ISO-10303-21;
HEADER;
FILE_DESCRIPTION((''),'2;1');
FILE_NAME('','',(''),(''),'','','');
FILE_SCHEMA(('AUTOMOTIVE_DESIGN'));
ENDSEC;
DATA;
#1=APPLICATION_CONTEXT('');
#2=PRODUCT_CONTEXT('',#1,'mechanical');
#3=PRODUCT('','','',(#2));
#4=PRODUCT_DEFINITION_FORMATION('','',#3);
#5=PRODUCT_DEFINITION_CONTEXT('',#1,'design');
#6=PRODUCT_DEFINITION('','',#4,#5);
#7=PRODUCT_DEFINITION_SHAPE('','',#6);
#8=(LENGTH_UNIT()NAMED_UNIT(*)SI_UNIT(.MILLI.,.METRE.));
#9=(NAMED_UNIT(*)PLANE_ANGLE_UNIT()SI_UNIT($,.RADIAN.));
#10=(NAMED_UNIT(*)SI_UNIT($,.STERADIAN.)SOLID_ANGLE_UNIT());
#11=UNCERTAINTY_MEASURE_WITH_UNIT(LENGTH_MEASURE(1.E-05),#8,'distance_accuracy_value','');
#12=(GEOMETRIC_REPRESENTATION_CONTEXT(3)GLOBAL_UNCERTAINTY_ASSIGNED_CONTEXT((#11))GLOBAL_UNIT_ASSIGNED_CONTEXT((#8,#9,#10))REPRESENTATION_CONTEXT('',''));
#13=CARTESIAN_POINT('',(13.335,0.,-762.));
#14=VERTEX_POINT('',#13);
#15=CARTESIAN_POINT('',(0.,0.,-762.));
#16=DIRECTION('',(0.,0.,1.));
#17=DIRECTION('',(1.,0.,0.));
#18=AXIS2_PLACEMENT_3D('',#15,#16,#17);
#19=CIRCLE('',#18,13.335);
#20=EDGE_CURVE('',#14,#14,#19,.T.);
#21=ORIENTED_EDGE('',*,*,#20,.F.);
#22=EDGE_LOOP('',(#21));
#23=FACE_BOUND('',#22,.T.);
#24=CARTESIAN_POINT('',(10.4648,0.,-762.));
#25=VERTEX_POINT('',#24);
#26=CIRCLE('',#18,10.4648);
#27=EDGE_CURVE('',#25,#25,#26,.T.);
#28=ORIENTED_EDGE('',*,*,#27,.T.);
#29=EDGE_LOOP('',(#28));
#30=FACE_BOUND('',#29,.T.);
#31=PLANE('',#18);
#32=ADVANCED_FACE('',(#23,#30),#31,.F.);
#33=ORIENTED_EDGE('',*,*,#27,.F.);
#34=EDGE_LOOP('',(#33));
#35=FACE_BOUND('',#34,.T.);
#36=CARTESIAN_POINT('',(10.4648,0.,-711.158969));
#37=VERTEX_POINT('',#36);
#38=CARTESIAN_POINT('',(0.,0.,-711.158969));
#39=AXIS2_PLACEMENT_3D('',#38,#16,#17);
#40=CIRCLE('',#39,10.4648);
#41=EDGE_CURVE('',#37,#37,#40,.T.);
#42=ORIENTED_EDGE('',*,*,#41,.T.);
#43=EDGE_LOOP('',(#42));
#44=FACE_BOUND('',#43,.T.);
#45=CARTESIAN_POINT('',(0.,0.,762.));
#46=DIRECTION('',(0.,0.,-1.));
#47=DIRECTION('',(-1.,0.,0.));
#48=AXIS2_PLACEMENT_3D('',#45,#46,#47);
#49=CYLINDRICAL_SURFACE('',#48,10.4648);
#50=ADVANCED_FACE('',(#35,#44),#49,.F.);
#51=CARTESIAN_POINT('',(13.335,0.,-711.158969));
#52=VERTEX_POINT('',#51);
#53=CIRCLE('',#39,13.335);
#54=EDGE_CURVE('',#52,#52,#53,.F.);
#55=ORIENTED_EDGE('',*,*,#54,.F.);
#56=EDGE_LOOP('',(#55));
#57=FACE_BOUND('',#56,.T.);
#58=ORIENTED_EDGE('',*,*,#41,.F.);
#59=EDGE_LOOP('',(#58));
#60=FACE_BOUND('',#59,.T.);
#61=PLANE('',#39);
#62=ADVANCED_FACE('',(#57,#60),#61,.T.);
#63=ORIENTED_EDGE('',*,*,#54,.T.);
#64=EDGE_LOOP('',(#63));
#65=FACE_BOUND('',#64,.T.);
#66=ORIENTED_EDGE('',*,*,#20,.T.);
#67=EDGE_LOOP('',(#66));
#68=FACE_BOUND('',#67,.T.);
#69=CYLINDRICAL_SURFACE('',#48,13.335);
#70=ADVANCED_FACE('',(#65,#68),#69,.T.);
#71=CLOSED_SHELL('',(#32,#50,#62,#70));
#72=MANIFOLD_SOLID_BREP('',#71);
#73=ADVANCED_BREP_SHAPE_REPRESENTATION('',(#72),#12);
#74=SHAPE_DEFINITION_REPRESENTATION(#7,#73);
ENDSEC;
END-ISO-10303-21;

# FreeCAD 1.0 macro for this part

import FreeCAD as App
import Part
import Sketcher
Q = App.Units.Quantity

doc = App.newDocument("Part")
body = doc.addObject("PartDesign::Body", "Body")

# Sketch on XY plane
sketch1 = doc.addObject("Sketcher::SketchObject", "Sketch")
body.addObject(sketch1)
sketch1.AttachmentSupport = (doc.XY_Plane, [""])
sketch1.MapMode = "FlatFace"
sketch1.addGeometry([
    Part.Circle(App.Vector(0, 0, 0), App.Vector(0, 0, 1), 13.335),
    Part.Circle(App.Vector(0, 0, 0), App.Vector(0, 0, 1), 10.4648),
], False)
sketch1.addConstraint([
    Sketcher.Constraint("Coincident", 0, 3, -1, 1),
    Sketcher.Constraint("Coincident", 1, 3, -1, 1),
    Sketcher.Constraint("Diameter", 0, Q("1.05 in")),
    Sketcher.Constraint("Diameter", 1, Q("0.824 in")),
])
pad1 = doc.addObject("PartDesign::Pad", "Pad")
body.addObject(pad1)
pad1.Profile = sketch1
pad1.Type = "TwoLengths"
pad1.Length = Q("30 in")
pad1.Length2 = Q("30 in")

# Sketch on XY plane
sketch2 = doc.addObject("Sketcher::SketchObject", "Sketch001")
body.addObject(sketch2)
sketch2.AttachmentSupport = (doc.XY_Plane, [""])
sketch2.MapMode = "FlatFace"
sketch2.AttachmentOffset = App.Placement(App.Vector(0, 0, 30 * 25.4), App.Rotation())
sketch2.addGeometry(Part.Circle(App.Vector(0, 0, 0), App.Vector(0, 0, 1), 13.335), False)
sketch2.addConstraint([
    Sketcher.Constraint("Coincident", 0, 3, -1, 1),
    Sketcher.Constraint("Diameter", 0, Q("1.05 in")),
])
pocket1 = doc.addObject("PartDesign::Pocket", "Pocket")
body.addObject(pocket1)
pocket1.Profile = sketch2
pocket1.Length = 1473.158969

doc.recompute()
